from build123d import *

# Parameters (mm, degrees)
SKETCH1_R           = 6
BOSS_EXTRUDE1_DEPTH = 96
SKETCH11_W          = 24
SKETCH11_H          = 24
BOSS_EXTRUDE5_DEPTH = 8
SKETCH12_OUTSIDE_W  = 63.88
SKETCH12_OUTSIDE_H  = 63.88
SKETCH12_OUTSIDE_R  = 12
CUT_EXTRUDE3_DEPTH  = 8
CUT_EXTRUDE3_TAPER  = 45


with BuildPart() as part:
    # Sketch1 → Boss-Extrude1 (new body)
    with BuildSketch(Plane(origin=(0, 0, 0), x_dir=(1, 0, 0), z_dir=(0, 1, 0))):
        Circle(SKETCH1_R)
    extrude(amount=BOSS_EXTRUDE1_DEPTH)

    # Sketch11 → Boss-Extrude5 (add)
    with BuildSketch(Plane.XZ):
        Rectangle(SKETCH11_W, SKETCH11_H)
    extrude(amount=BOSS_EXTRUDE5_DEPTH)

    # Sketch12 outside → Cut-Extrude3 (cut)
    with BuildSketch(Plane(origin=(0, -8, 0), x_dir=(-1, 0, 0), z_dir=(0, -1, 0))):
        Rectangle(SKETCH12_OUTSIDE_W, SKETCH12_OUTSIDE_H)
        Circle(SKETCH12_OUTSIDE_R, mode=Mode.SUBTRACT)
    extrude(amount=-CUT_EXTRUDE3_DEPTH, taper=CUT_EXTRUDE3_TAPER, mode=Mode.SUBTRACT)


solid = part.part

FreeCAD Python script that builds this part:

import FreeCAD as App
import Part
import Sketcher
from FreeCAD import Vector
Q = App.Units.Quantity


def add_polygon(sketch, points):
    """Adds a closed chain of lines whose ends are joined by coincident constraints."""
    first, n = sketch.GeometryCount, len(points)
    for a, b in zip(points, points[1:] + points[:1]):
        sketch.addGeometry(Part.LineSegment(App.Vector(*a, 0), App.Vector(*b, 0)), False)
    for i in range(n):
        sketch.addConstraint(Sketcher.Constraint("Coincident", first + i, 2, first + (i + 1) % n, 1))

doc = App.newDocument("Part")
body = doc.addObject("PartDesign::Body", "Body")

# Sketch on XZ plane
sketch1 = doc.addObject("Sketcher::SketchObject", "Sketch")
body.addObject(sketch1)
sketch1.AttachmentSupport = (doc.XZ_Plane, [""])
sketch1.MapMode = "FlatFace"
sketch1.addGeometry(Part.Circle(Vector(0, 0, 0), Vector(0, 0, 1), 6), False)
sketch1.addConstraint([
    Sketcher.Constraint("Coincident", 0, 3, -1, 1),
    Sketcher.Constraint("Diameter", 0, Q("12 mm")),
])
pad1 = doc.addObject("PartDesign::Pad", "Pad")
body.addObject(pad1)
pad1.Profile = sketch1
pad1.Length = 96
pad1.Reversed = True

# Sketch on XZ plane
sketch2 = doc.addObject("Sketcher::SketchObject", "Sketch001")
body.addObject(sketch2)
sketch2.AttachmentSupport = (doc.XZ_Plane, [""])
sketch2.MapMode = "FlatFace"
add_polygon(sketch2, [(-12, 12), (-12, -12), (12, -12), (12, 12)])  # lines 0-3
sketch2.addConstraint([
    Sketcher.Constraint("Vertical", 0),
    Sketcher.Constraint("Horizontal", 1),
    Sketcher.Constraint("Vertical", 2),
    Sketcher.Constraint("Horizontal", 3),
    Sketcher.Constraint("Symmetric", 0, 2, 2, 2, -1, 1),
    Sketcher.Constraint("Equal", 3, 0),
    Sketcher.Constraint("DistanceX", 1, 1, 1, 2, Q("24 mm")),
])
pad2 = doc.addObject("PartDesign::Pad", "Pad001")
body.addObject(pad2)
pad2.Profile = sketch2
pad2.Length = 8

# Sketch on XZ plane
sketch3 = doc.addObject("Sketcher::SketchObject", "Sketch002")
body.addObject(sketch3)
sketch3.AttachmentSupport = (doc.XZ_Plane, [""])
sketch3.MapMode = "FlatFace"
sketch3.AttachmentOffset = App.Placement(Vector(0, 0, 8), App.Rotation())
add_polygon(sketch3, [(32, -32), (32, 32), (-32, 32), (-32, -32)])  # lines 0-3
sketch3.addGeometry(Part.Circle(Vector(0, 0, 0), Vector(0, 0, 1), 12), False)  # 4
sketch3.addConstraint([
    Sketcher.Constraint("Vertical", 0),
    Sketcher.Constraint("Horizontal", 1),
    Sketcher.Constraint("Vertical", 2),
    Sketcher.Constraint("Horizontal", 3),
    Sketcher.Constraint("Coincident", 4, 3, -1, 1),
    Sketcher.Constraint("Symmetric", 0, 2, 2, 2, -1, 1),
    Sketcher.Constraint("Equal", 3, 0),
    Sketcher.Constraint("Diameter", 4, Q("24 mm")),
    Sketcher.Constraint("DistanceX", 1, 2, 1, 1, Q("63.88 mm")),
])
pocket1 = doc.addObject("PartDesign::Pocket", "Pocket")
body.addObject(pocket1)
pocket1.Profile = sketch3
pocket1.Length = 8
pocket1.TaperAngle = 45

doc.recompute()
